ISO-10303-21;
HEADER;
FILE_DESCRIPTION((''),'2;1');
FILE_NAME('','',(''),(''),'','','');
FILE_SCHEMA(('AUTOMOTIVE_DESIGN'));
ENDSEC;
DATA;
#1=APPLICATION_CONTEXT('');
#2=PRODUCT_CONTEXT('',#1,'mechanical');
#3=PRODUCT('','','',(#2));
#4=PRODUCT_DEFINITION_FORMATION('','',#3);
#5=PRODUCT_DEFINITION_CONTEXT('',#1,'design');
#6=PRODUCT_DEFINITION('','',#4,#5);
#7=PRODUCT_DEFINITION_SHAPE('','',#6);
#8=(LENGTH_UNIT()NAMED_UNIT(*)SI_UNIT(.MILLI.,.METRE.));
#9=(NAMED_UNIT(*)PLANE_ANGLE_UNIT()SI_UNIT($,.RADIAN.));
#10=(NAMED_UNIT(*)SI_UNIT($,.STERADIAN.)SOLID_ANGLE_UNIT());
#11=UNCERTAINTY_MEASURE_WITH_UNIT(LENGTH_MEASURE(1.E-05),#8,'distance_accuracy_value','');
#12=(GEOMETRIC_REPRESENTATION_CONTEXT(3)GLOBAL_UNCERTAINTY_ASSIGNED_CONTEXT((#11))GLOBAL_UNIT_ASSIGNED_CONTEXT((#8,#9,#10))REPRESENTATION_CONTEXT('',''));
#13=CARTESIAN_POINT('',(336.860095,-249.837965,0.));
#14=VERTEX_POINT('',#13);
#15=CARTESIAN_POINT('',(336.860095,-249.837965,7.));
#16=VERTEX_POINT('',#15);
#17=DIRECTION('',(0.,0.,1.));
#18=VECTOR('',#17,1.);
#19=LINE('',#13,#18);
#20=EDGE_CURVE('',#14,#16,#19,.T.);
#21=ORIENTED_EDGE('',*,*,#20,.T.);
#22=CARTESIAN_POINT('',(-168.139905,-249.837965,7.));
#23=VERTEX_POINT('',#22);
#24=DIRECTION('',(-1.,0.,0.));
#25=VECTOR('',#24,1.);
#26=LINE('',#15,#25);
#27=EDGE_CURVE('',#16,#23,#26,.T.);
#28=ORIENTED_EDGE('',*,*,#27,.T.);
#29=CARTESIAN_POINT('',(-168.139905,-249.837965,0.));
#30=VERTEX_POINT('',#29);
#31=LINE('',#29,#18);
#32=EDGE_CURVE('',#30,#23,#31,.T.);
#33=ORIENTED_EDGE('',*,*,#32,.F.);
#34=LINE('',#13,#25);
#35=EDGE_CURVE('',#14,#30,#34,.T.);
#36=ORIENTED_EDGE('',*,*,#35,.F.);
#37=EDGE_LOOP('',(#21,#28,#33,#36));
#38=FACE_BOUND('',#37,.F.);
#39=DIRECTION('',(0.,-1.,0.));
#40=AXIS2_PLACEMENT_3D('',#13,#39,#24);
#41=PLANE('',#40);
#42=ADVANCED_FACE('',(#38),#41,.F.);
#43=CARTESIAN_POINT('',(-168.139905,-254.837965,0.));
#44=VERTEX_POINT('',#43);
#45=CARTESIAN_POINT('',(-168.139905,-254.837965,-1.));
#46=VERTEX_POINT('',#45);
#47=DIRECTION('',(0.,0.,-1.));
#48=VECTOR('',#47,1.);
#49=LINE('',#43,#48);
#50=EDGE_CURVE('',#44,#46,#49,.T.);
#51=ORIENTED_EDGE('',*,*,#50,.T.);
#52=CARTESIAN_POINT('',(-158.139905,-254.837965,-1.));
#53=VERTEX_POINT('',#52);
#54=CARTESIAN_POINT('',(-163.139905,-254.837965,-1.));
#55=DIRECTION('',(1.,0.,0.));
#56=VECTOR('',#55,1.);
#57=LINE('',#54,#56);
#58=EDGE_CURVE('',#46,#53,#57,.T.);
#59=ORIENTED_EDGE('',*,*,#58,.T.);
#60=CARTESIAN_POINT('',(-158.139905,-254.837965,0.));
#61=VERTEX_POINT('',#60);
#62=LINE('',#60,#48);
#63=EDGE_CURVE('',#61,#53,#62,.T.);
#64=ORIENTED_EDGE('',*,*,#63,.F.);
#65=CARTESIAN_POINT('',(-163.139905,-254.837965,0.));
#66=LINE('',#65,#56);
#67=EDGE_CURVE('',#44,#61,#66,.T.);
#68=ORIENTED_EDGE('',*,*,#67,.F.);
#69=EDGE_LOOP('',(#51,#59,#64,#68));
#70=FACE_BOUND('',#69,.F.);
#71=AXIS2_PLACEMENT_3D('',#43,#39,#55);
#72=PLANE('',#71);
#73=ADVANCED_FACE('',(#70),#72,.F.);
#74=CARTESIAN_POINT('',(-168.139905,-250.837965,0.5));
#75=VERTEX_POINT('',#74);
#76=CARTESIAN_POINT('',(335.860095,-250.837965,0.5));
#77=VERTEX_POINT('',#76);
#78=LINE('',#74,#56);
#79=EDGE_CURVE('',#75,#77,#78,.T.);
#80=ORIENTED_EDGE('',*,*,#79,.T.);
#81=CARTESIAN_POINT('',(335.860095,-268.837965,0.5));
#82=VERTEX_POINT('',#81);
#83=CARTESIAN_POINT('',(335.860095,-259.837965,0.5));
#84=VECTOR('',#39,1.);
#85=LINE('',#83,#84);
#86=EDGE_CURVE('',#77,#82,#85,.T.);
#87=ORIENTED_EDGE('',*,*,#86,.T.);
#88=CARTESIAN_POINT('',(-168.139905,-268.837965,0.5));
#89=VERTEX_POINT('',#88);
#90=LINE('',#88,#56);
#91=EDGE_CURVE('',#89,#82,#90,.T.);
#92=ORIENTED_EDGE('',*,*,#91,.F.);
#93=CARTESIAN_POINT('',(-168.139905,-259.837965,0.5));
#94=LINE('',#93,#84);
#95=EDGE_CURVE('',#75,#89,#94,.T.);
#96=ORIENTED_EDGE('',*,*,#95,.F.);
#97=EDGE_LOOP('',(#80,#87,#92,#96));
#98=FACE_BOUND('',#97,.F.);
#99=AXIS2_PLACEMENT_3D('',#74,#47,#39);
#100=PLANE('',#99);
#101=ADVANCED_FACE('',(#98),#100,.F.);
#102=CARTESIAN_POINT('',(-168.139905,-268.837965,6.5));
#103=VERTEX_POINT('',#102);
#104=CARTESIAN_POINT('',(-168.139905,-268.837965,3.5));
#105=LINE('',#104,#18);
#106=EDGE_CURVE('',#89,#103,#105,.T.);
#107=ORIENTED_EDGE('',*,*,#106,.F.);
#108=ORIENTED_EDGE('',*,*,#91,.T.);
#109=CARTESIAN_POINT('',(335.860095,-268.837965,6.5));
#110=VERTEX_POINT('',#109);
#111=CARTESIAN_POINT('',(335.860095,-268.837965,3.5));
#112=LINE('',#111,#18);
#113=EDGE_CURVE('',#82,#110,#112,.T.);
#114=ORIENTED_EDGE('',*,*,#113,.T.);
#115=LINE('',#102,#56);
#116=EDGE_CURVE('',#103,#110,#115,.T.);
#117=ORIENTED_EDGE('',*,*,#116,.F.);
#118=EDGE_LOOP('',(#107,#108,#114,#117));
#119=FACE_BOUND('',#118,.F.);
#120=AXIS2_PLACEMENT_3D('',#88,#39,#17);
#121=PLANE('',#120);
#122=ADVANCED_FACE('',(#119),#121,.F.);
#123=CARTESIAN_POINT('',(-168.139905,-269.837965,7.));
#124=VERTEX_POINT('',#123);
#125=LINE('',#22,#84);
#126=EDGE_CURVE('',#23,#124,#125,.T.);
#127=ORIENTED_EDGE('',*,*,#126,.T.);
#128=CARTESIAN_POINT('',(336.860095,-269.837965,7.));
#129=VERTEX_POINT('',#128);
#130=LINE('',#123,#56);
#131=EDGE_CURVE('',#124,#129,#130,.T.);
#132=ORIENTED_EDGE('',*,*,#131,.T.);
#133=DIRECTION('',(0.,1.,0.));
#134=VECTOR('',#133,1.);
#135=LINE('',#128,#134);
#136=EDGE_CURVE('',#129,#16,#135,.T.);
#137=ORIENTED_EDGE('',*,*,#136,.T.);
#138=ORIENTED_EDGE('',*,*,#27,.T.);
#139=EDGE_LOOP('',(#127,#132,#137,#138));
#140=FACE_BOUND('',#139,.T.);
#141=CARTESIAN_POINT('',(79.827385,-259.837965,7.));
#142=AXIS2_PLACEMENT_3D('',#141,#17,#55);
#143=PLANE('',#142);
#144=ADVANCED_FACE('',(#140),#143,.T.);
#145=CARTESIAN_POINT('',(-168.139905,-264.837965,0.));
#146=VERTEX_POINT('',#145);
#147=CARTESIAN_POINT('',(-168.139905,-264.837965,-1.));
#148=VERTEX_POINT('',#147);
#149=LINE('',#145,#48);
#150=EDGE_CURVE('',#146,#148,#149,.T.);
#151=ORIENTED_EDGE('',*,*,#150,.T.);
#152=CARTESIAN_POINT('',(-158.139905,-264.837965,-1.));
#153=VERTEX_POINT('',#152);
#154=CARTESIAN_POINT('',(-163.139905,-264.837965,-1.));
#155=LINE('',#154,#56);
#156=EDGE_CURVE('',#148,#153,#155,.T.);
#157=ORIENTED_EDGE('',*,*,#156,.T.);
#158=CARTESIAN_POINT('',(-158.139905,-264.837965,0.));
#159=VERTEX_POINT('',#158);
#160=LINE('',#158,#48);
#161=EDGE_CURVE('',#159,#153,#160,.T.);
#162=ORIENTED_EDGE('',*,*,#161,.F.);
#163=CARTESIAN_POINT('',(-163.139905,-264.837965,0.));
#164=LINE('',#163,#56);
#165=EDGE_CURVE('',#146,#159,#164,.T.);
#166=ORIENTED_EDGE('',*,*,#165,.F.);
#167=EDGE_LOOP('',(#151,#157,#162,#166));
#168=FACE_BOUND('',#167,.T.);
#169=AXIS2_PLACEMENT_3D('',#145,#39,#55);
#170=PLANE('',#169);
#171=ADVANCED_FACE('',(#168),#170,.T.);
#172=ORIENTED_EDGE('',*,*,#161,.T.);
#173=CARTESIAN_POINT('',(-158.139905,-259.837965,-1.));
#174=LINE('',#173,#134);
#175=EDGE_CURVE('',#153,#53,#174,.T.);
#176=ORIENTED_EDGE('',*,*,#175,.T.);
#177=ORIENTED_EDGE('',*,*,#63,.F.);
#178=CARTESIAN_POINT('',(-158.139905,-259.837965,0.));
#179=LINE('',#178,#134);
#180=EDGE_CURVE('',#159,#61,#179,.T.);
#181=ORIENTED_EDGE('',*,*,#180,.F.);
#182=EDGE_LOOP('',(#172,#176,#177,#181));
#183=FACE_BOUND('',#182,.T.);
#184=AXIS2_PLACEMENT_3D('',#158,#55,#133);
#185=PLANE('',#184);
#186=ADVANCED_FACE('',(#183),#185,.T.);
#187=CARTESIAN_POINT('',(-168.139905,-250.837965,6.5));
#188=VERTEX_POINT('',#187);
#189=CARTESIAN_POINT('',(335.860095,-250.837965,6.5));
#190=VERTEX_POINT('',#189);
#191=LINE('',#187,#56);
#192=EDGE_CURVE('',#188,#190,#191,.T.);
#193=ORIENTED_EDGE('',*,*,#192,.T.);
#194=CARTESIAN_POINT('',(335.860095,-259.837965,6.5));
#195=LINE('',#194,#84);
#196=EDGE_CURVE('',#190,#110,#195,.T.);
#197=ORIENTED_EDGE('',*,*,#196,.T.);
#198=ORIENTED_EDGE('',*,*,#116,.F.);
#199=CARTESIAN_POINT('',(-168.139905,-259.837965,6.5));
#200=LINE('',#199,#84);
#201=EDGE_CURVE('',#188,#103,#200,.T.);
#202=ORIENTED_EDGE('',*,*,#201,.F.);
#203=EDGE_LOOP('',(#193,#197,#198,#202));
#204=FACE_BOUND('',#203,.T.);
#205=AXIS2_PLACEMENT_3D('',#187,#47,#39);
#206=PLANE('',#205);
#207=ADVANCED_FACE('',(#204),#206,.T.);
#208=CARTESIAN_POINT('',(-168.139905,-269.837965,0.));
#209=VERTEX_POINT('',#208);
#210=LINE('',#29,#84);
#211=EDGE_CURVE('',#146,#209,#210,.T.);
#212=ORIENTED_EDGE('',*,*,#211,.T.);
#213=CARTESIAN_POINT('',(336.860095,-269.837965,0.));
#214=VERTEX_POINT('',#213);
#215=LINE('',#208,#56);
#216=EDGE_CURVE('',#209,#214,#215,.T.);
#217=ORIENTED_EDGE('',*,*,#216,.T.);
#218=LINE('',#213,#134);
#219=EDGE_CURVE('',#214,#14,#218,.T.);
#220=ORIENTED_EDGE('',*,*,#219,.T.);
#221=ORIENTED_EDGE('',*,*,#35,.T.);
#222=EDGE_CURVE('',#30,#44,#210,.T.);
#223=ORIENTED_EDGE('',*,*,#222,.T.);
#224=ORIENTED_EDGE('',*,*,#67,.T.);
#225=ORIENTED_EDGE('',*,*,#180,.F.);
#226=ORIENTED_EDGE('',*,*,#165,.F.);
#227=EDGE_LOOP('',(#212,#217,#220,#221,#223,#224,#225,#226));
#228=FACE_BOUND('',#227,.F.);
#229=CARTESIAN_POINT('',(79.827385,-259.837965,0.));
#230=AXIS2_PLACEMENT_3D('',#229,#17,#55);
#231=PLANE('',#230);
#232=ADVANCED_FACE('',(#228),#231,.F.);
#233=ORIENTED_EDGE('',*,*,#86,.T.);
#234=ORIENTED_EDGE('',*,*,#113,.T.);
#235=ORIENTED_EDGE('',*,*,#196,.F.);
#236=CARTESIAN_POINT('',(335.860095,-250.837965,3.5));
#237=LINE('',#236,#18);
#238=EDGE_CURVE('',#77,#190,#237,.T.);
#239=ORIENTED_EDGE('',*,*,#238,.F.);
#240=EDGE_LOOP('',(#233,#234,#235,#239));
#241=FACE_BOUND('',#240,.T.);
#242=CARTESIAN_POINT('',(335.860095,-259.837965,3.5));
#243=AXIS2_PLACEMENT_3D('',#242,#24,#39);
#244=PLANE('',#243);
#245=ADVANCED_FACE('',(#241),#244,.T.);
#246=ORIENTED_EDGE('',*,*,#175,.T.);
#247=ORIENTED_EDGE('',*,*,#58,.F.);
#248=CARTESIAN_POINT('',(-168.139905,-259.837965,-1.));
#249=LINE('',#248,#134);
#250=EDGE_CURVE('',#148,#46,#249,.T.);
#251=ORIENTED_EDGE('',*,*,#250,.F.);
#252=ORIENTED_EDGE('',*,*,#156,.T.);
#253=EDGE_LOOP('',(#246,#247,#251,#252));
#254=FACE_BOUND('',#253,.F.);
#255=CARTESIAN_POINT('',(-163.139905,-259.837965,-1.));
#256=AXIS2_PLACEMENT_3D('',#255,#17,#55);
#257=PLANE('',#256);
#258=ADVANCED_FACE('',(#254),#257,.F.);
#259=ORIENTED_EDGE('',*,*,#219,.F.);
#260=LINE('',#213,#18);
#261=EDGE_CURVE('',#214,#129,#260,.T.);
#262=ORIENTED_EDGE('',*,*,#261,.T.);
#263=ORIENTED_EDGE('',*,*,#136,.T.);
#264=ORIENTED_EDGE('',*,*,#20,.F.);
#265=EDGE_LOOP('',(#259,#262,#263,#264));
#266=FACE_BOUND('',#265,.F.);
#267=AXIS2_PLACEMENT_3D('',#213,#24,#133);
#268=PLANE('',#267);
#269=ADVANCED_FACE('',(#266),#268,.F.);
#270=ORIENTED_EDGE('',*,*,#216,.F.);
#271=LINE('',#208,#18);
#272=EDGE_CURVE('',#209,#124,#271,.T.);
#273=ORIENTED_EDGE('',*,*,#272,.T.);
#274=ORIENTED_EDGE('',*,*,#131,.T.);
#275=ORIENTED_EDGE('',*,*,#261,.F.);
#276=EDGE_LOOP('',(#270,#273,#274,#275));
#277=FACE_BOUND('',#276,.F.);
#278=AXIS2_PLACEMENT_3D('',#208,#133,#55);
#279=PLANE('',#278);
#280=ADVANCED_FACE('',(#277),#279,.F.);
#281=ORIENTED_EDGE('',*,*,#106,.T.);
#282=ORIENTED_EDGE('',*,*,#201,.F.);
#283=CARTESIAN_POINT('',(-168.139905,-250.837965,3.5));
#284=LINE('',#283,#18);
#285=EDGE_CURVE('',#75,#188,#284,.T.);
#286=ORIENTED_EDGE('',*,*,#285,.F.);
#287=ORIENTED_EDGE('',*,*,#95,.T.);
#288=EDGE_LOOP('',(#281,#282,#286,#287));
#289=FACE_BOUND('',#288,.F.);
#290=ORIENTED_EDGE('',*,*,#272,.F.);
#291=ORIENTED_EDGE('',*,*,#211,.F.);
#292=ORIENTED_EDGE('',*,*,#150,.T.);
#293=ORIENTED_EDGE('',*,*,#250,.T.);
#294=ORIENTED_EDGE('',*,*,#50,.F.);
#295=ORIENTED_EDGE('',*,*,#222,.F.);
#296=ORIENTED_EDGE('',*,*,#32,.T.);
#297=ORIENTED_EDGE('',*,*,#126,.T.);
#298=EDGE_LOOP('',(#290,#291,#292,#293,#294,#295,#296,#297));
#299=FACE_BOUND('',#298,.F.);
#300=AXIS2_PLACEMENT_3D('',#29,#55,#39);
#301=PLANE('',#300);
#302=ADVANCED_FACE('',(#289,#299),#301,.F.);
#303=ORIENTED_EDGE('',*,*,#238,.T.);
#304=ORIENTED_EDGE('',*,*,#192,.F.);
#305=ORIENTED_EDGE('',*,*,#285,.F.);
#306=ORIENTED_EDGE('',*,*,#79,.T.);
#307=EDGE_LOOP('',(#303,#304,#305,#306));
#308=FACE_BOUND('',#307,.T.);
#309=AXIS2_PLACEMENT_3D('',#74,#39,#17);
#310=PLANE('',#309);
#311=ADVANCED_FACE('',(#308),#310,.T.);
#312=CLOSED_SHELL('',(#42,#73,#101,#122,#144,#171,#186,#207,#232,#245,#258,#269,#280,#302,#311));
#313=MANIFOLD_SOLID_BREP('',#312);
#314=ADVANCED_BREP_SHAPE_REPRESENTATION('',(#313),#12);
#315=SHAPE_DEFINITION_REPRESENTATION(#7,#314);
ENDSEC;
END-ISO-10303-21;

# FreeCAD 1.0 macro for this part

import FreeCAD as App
import Part
import Sketcher


def add_polygon(sketch, points):
    """Adds a closed chain of lines whose ends are joined by coincident constraints."""
    first, n = sketch.GeometryCount, len(points)
    for a, b in zip(points, points[1:] + points[:1]):
        sketch.addGeometry(Part.LineSegment(App.Vector(*a, 0), App.Vector(*b, 0)), False)
    for i in range(n):
        sketch.addConstraint(Sketcher.Constraint("Coincident", first + i, 2, first + (i + 1) % n, 1))

doc = App.newDocument("Part")
body = doc.addObject("PartDesign::Body", "Body")

# Sketch on XY plane
sketch1 = body.newObject("Sketcher::SketchObject", "Sketch")
sketch1.AttachmentSupport = (doc.getObject("XY_Plane"), [""])
sketch1.MapMode = "FlatFace"
add_polygon(sketch1, [(337, -250), (-168, -250), (-168, -270), (337, -270)])  # lines 0-3
sketch1.addConstraint([
    Sketcher.Constraint("Horizontal", 0),
    Sketcher.Constraint("Vertical", 1),
    Sketcher.Constraint("Horizontal", 2),
    Sketcher.Constraint("Vertical", 3),
    Sketcher.Constraint("DistanceX", 0, 2, 0, 1, 505.0),
    Sketcher.Constraint("DistanceY", 1, 2, 1, 1, 20.0),
    Sketcher.Constraint("DistanceX", 0, 2, -1, 1, 168.139905),
    Sketcher.Constraint("DistanceY", 0, 2, -1, 1, 249.837965),
])
pad1 = body.newObject("PartDesign::Pad", "Pad")
pad1.Profile = sketch1
pad1.Length = 7

# Sketch on XY plane
sketch2 = body.newObject("Sketcher::SketchObject", "Sketch001")
sketch2.AttachmentSupport = (doc.getObject("XY_Plane"), [""])
sketch2.MapMode = "FlatFace"
add_polygon(sketch2, [(-168, -255), (-168, -265), (-158, -265), (-158, -255)])  # lines 0-3
sketch2.addConstraint([
    Sketcher.Constraint("Vertical", 0),
    Sketcher.Constraint("Horizontal", 1),
    Sketcher.Constraint("Vertical", 2),
    Sketcher.Constraint("Horizontal", 3),
    Sketcher.Constraint("Equal", 3, 0),
    Sketcher.Constraint("DistanceX", 1, 1, 1, 2, 10.0),
    Sketcher.Constraint("DistanceX", 0, 2, -1, 1, 168.139905),
    Sketcher.Constraint("DistanceY", 0, 2, -1, 1, 264.837965),
])
pad2 = body.newObject("PartDesign::Pad", "Pad001")
pad2.Profile = sketch2
pad2.Length = 1
pad2.Reversed = True

# Sketch on YZ plane
sketch3 = body.newObject("Sketcher::SketchObject", "Sketch002")
sketch3.AttachmentSupport = (doc.getObject("YZ_Plane"), [""])
sketch3.MapMode = "FlatFace"
sketch3.AttachmentOffset = App.Placement(App.Vector(0, 0, -168.139905), App.Rotation())
add_polygon(sketch3, [(-251, 6), (-251, 0), (-269, 0), (-269, 6)])  # lines 0-3
sketch3.addConstraint([
    Sketcher.Constraint("Vertical", 0),
    Sketcher.Constraint("Horizontal", 1),
    Sketcher.Constraint("Vertical", 2),
    Sketcher.Constraint("Horizontal", 3),
    Sketcher.Constraint("DistanceX", 1, 2, 1, 1, 18.0),
    Sketcher.Constraint("DistanceY", 0, 2, 0, 1, 6.0),
    Sketcher.Constraint("DistanceY", -1, 1, 0, 2, 0.5),
    Sketcher.Constraint("DistanceX", 0, 2, -1, 1, 250.837965),
])
pocket1 = body.newObject("PartDesign::Pocket", "Pocket")
pocket1.Profile = sketch3
pocket1.Length = 504
pocket1.Reversed = True

doc.recompute()
